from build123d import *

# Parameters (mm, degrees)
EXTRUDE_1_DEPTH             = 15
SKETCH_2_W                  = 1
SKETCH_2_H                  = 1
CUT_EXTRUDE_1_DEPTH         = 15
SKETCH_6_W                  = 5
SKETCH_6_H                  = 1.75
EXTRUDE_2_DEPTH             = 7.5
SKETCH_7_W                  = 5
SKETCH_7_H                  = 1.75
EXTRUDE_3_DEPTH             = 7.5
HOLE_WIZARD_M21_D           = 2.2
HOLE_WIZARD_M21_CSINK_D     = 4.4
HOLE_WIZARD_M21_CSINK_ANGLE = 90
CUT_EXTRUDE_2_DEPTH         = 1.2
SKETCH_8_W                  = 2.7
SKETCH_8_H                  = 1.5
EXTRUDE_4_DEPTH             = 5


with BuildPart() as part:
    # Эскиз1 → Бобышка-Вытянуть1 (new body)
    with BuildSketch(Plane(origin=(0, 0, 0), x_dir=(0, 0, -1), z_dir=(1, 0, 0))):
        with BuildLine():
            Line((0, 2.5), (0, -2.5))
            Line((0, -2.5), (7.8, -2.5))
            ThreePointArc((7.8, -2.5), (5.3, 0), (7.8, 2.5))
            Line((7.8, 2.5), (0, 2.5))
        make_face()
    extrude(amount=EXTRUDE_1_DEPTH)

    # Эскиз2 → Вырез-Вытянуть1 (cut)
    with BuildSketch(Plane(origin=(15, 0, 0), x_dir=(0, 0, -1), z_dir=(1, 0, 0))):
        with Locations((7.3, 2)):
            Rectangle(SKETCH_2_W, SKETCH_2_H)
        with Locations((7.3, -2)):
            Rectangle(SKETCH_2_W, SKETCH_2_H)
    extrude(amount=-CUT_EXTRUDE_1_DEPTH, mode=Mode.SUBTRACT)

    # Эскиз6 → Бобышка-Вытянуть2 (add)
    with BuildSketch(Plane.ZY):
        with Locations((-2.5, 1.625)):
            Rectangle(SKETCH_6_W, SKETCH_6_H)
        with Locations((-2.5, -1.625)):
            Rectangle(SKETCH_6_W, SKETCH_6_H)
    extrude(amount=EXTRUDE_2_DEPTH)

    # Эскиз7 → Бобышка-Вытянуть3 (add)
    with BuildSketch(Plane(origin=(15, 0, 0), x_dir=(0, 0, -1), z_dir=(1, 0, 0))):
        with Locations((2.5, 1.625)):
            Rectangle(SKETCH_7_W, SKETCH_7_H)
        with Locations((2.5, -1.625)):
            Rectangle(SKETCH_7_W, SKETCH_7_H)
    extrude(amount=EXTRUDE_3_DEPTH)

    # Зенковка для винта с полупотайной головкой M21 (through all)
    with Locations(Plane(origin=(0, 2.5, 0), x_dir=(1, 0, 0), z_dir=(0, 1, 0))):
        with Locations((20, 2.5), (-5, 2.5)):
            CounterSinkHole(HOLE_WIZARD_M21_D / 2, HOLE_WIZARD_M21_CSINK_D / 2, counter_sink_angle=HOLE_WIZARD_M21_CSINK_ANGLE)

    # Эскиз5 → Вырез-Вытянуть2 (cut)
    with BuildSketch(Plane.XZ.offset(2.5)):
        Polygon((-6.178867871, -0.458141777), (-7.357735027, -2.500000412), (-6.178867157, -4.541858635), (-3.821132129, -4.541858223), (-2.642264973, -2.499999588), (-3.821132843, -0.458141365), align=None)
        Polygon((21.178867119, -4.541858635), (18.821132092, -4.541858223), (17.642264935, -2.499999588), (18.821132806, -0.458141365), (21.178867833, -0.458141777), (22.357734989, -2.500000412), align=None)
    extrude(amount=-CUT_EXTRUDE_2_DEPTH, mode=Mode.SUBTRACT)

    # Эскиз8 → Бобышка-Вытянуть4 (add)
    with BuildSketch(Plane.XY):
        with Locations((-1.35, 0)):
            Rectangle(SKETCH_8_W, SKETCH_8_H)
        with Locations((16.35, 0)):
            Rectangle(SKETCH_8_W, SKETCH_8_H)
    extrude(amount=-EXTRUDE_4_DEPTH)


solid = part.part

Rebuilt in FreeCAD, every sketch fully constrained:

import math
import FreeCAD as App
import Part
import Sketcher
from FreeCAD import Vector
Q = App.Units.Quantity

doc = App.newDocument("Part")
body = doc.addObject("PartDesign::Body", "Body")

# Sketch on YZ plane
sketch1 = body.newObject("Sketcher::SketchObject", "Sketch")
sketch1.AttachmentSupport = (doc.getObject("YZ_Plane"), [""])
sketch1.MapMode = "FlatFace"
sketch1.addGeometry(Part.LineSegment(Vector(2.5, 0, 0), Vector(-2.5, 0, 0)), False)
sketch1.addGeometry(Part.LineSegment(Vector(-2.5, 0, 0), Vector(-2.5, -7.8, 0)), False)
sketch1.addGeometry(Part.ArcOfCircle(Part.Circle(Vector(0, -7.8, 0), Vector(0, 0, 1), 2.5), math.radians(0), math.radians(180)), False)
sketch1.addGeometry(Part.LineSegment(Vector(2.5, -7.8, 0), Vector(2.5, 0, 0)), False)
sketch1.addConstraint(Sketcher.Constraint("Coincident", 0, 2, 1, 1))
sketch1.addConstraint(Sketcher.Constraint("Tangent", 1, 2, 2, 2))
sketch1.addConstraint(Sketcher.Constraint("Tangent", 2, 1, 3, 1))
sketch1.addConstraint(Sketcher.Constraint("Coincident", 3, 2, 0, 1))
sketch1.addConstraint(Sketcher.Constraint("Horizontal", 0))
sketch1.addConstraint(Sketcher.Constraint("Vertical", 1))
sketch1.addConstraint(Sketcher.Constraint("Vertical", 3))
sketch1.addConstraint(Sketcher.Constraint("Symmetric", 0, 2, 3, 2, -1, 1))
sketch1.addConstraint(Sketcher.Constraint("Radius", 2, Q("2.5 mm")))
sketch1.addConstraint(Sketcher.Constraint("DistanceY", 1, 2, 1, 1, Q("7.8 mm")))
pad1 = body.newObject("PartDesign::Pad", "Pad")
pad1.Profile = sketch1
pad1.Length = 15

# Sketch on YZ plane
sketch2 = body.newObject("Sketcher::SketchObject", "Sketch001")
sketch2.AttachmentSupport = (doc.getObject("YZ_Plane"), [""])
sketch2.MapMode = "FlatFace"
sketch2.AttachmentOffset = App.Placement(Vector(0, 0, 15), App.Rotation())
sketch2.addGeometry(Part.LineSegment(Vector(2.5, -6.8, 0), Vector(1.5, -6.8, 0)), False)
sketch2.addGeometry(Part.LineSegment(Vector(1.5, -6.8, 0), Vector(1.5, -7.8, 0)), False)
sketch2.addGeometry(Part.LineSegment(Vector(1.5, -7.8, 0), Vector(2.5, -7.8, 0)), False)
sketch2.addGeometry(Part.LineSegment(Vector(2.5, -7.8, 0), Vector(2.5, -6.8, 0)), False)
sketch2.addGeometry(Part.LineSegment(Vector(-1.5, -6.8, 0), Vector(-2.5, -6.8, 0)), False)
sketch2.addGeometry(Part.LineSegment(Vector(-2.5, -6.8, 0), Vector(-2.5, -7.8, 0)), False)
sketch2.addGeometry(Part.LineSegment(Vector(-2.5, -7.8, 0), Vector(-1.5, -7.8, 0)), False)
sketch2.addGeometry(Part.LineSegment(Vector(-1.5, -7.8, 0), Vector(-1.5, -6.8, 0)), False)
sketch2.addConstraint(Sketcher.Constraint("Coincident", 0, 2, 1, 1))
sketch2.addConstraint(Sketcher.Constraint("Coincident", 1, 2, 2, 1))
sketch2.addConstraint(Sketcher.Constraint("Coincident", 2, 2, 3, 1))
sketch2.addConstraint(Sketcher.Constraint("Coincident", 3, 2, 0, 1))
sketch2.addConstraint(Sketcher.Constraint("Coincident", 4, 2, 5, 1))
sketch2.addConstraint(Sketcher.Constraint("Coincident", 5, 2, 6, 1))
sketch2.addConstraint(Sketcher.Constraint("Coincident", 6, 2, 7, 1))
sketch2.addConstraint(Sketcher.Constraint("Coincident", 7, 2, 4, 1))
sketch2.addConstraint(Sketcher.Constraint("Horizontal", 0))
sketch2.addConstraint(Sketcher.Constraint("Vertical", 1))
sketch2.addConstraint(Sketcher.Constraint("Horizontal", 2))
sketch2.addConstraint(Sketcher.Constraint("Vertical", 3))
sketch2.addConstraint(Sketcher.Constraint("Horizontal", 4))
sketch2.addConstraint(Sketcher.Constraint("Vertical", 5))
sketch2.addConstraint(Sketcher.Constraint("Horizontal", 6))
sketch2.addConstraint(Sketcher.Constraint("Vertical", 7))
sketch2.addConstraint(Sketcher.Constraint("Symmetric", 3, 2, 4, 2, -2))
sketch2.addConstraint(Sketcher.Constraint("Symmetric", 1, 2, 6, 2, -2))
sketch2.addConstraint(Sketcher.Constraint("Equal", 6, 1))
sketch2.addConstraint(Sketcher.Constraint("DistanceX", 0, 2, 0, 1, Q("1 mm")))
sketch2.addConstraint(Sketcher.Constraint("DistanceX", 4, 2, 0, 2, Q("4 mm")))
sketch2.addConstraint(Sketcher.Constraint("DistanceY", 0, 2, -1, 1, Q("6.8 mm")))
pocket1 = body.newObject("PartDesign::Pocket", "Pocket")
pocket1.Profile = sketch2
pocket1.Length = 15

# Sketch on YZ plane
sketch3 = body.newObject("Sketcher::SketchObject", "Sketch002")
sketch3.AttachmentSupport = (doc.getObject("YZ_Plane"), [""])
sketch3.MapMode = "FlatFace"
sketch3.addGeometry(Part.LineSegment(Vector(2.5, -5, 0), Vector(0.8, -5, 0)), False)
sketch3.addGeometry(Part.LineSegment(Vector(0.8, -5, 0), Vector(0.8, 0, 0)), False)
sketch3.addGeometry(Part.LineSegment(Vector(0.8, 0, 0), Vector(2.5, 0, 0)), False)
sketch3.addGeometry(Part.LineSegment(Vector(2.5, 0, 0), Vector(2.5, -5, 0)), False)
sketch3.addGeometry(Part.LineSegment(Vector(-0.8, -5, 0), Vector(-2.5, -5, 0)), False)
sketch3.addGeometry(Part.LineSegment(Vector(-2.5, -5, 0), Vector(-2.5, 0, 0)), False)
sketch3.addGeometry(Part.LineSegment(Vector(-2.5, 0, 0), Vector(-0.8, 0, 0)), False)
sketch3.addGeometry(Part.LineSegment(Vector(-0.8, 0, 0), Vector(-0.8, -5, 0)), False)
sketch3.addConstraint(Sketcher.Constraint("Coincident", 0, 2, 1, 1))
sketch3.addConstraint(Sketcher.Constraint("Coincident", 1, 2, 2, 1))
sketch3.addConstraint(Sketcher.Constraint("Coincident", 2, 2, 3, 1))
sketch3.addConstraint(Sketcher.Constraint("Coincident", 3, 2, 0, 1))
sketch3.addConstraint(Sketcher.Constraint("Coincident", 4, 2, 5, 1))
sketch3.addConstraint(Sketcher.Constraint("Coincident", 5, 2, 6, 1))
sketch3.addConstraint(Sketcher.Constraint("Coincident", 6, 2, 7, 1))
sketch3.addConstraint(Sketcher.Constraint("Coincident", 7, 2, 4, 1))
sketch3.addConstraint(Sketcher.Constraint("Horizontal", 0))
sketch3.addConstraint(Sketcher.Constraint("Vertical", 1))
sketch3.addConstraint(Sketcher.Constraint("Horizontal", 2))
sketch3.addConstraint(Sketcher.Constraint("Vertical", 3))
sketch3.addConstraint(Sketcher.Constraint("Horizontal", 4))
sketch3.addConstraint(Sketcher.Constraint("Vertical", 5))
sketch3.addConstraint(Sketcher.Constraint("Horizontal", 6))
sketch3.addConstraint(Sketcher.Constraint("Vertical", 7))
sketch3.addConstraint(Sketcher.Constraint("Symmetric", 2, 2, 5, 2, -1, 1))
sketch3.addConstraint(Sketcher.Constraint("Symmetric", 1, 2, 6, 2, -2))
sketch3.addConstraint(Sketcher.Constraint("Horizontal", 3, 2, 4, 2))
sketch3.addConstraint(Sketcher.Constraint("DistanceY", 1, 1, 1, 2, Q("5 mm")))
sketch3.addConstraint(Sketcher.Constraint("DistanceX", 4, 2, 3, 2, Q("5 mm")))
sketch3.addConstraint(Sketcher.Constraint("DistanceX", 0, 2, 0, 1, Q("1.75 mm")))
pad2 = body.newObject("PartDesign::Pad", "Pad001")
pad2.Profile = sketch3
pad2.Length = 7.5
pad2.Reversed = True

# Sketch on YZ plane
sketch4 = body.newObject("Sketcher::SketchObject", "Sketch003")
sketch4.AttachmentSupport = (doc.getObject("YZ_Plane"), [""])
sketch4.MapMode = "FlatFace"
sketch4.AttachmentOffset = App.Placement(Vector(0, 0, 15), App.Rotation())
sketch4.addGeometry(Part.LineSegment(Vector(2.5, 0, 0), Vector(0.8, 0, 0)), False)
sketch4.addGeometry(Part.LineSegment(Vector(0.8, 0, 0), Vector(0.8, -5, 0)), False)
sketch4.addGeometry(Part.LineSegment(Vector(0.8, -5, 0), Vector(2.5, -5, 0)), False)
sketch4.addGeometry(Part.LineSegment(Vector(2.5, -5, 0), Vector(2.5, 0, 0)), False)
sketch4.addGeometry(Part.LineSegment(Vector(-0.8, 0, 0), Vector(-2.5, 0, 0)), False)
sketch4.addGeometry(Part.LineSegment(Vector(-2.5, 0, 0), Vector(-2.5, -5, 0)), False)
sketch4.addGeometry(Part.LineSegment(Vector(-2.5, -5, 0), Vector(-0.8, -5, 0)), False)
sketch4.addGeometry(Part.LineSegment(Vector(-0.8, -5, 0), Vector(-0.8, 0, 0)), False)
sketch4.addConstraint(Sketcher.Constraint("Coincident", 0, 2, 1, 1))
sketch4.addConstraint(Sketcher.Constraint("Coincident", 1, 2, 2, 1))
sketch4.addConstraint(Sketcher.Constraint("Coincident", 2, 2, 3, 1))
sketch4.addConstraint(Sketcher.Constraint("Coincident", 3, 2, 0, 1))
sketch4.addConstraint(Sketcher.Constraint("Coincident", 4, 2, 5, 1))
sketch4.addConstraint(Sketcher.Constraint("Coincident", 5, 2, 6, 1))
sketch4.addConstraint(Sketcher.Constraint("Coincident", 6, 2, 7, 1))
sketch4.addConstraint(Sketcher.Constraint("Coincident", 7, 2, 4, 1))
sketch4.addConstraint(Sketcher.Constraint("Horizontal", 0))
sketch4.addConstraint(Sketcher.Constraint("Vertical", 1))
sketch4.addConstraint(Sketcher.Constraint("Horizontal", 2))
sketch4.addConstraint(Sketcher.Constraint("Vertical", 3))
sketch4.addConstraint(Sketcher.Constraint("Horizontal", 4))
sketch4.addConstraint(Sketcher.Constraint("Vertical", 5))
sketch4.addConstraint(Sketcher.Constraint("Horizontal", 6))
sketch4.addConstraint(Sketcher.Constraint("Vertical", 7))
sketch4.addConstraint(Sketcher.Constraint("Symmetric", 3, 2, 4, 2, -1, 1))
sketch4.addConstraint(Sketcher.Constraint("Symmetric", 1, 2, 6, 2, -2))
sketch4.addConstraint(Sketcher.Constraint("PointOnObject", 0, 2, -1))
sketch4.addConstraint(Sketcher.Constraint("DistanceY", 1, 2, 1, 1, Q("5 mm")))
sketch4.addConstraint(Sketcher.Constraint("DistanceX", 4, 2, 3, 2, Q("5 mm")))
sketch4.addConstraint(Sketcher.Constraint("DistanceX", 0, 2, 0, 1, Q("1.75 mm")))
pad3 = body.newObject("PartDesign::Pad", "Pad002")
pad3.Profile = sketch4
pad3.Length = 7.5

# Sketch on XZ plane
sketch5 = body.newObject("Sketcher::SketchObject", "Sketch004")
sketch5.AttachmentSupport = (doc.getObject("XZ_Plane"), [""])
sketch5.MapMode = "FlatFace"
sketch5.AttachmentOffset = App.Placement(Vector(0, 0, -2.5), App.Rotation())
sketch5.addGeometry(Part.Circle(Vector(20, -2.5, 0), Vector(0, 0, 1), 1.1), False)
sketch5.addGeometry(Part.Circle(Vector(-5, -2.5, 0), Vector(0, 0, 1), 1.1), False)
sketch5.addConstraint(Sketcher.Constraint("Equal", 0, 1))
sketch5.addConstraint(Sketcher.Constraint("Horizontal", 0, 3, 1, 3))
sketch5.addConstraint(Sketcher.Constraint("Diameter", 0, Q("2.2 mm")))
sketch5.addConstraint(Sketcher.Constraint("DistanceX", -1, 1, 0, 3, Q("20 mm")))
sketch5.addConstraint(Sketcher.Constraint("DistanceX", 1, 3, -1, 1, Q("5 mm")))
sketch5.addConstraint(Sketcher.Constraint("DistanceY", 0, 3, -1, 1, Q("2.5 mm")))
doc.recompute()
hole = body.newObject("PartDesign::Hole", "Hole")
hole.Profile = sketch5
hole.ThreadType = "None"
hole.Diameter = 2.2
hole.DepthType = "ThroughAll"
hole.HoleCutType = "Countersink"
hole.HoleCutDiameter = 4.4
hole.HoleCutCountersinkAngle = 90
hole.Reversed = True

# Sketch on XZ plane
sketch6 = body.newObject("Sketcher::SketchObject", "Sketch005")
sketch6.AttachmentSupport = (doc.getObject("XZ_Plane"), [""])
sketch6.MapMode = "FlatFace"
sketch6.AttachmentOffset = App.Placement(Vector(0, 0, 2.5), App.Rotation())
sketch6.addGeometry(Part.LineSegment(Vector(-6.2, -0.5, 0), Vector(-7.4, -2.5, 0)), False)
sketch6.addGeometry(Part.LineSegment(Vector(-7.4, -2.5, 0), Vector(-6.2, -4.5, 0)), False)
sketch6.addGeometry(Part.LineSegment(Vector(-6.2, -4.5, 0), Vector(-3.8, -4.5, 0)), False)
sketch6.addGeometry(Part.LineSegment(Vector(-3.8, -4.5, 0), Vector(-2.6, -2.5, 0)), False)
sketch6.addGeometry(Part.LineSegment(Vector(-2.6, -2.5, 0), Vector(-3.8, -0.5, 0)), False)
sketch6.addGeometry(Part.LineSegment(Vector(-3.8, -0.5, 0), Vector(-6.2, -0.5, 0)), False)
sketch6.addGeometry(Part.LineSegment(Vector(18.8, -4.5, 0), Vector(21.2, -4.5, 0)), False)
sketch6.addGeometry(Part.LineSegment(Vector(21.2, -4.5, 0), Vector(22.4, -2.5, 0)), False)
sketch6.addGeometry(Part.LineSegment(Vector(22.4, -2.5, 0), Vector(21.2, -0.5, 0)), False)
sketch6.addGeometry(Part.LineSegment(Vector(21.2, -0.5, 0), Vector(18.8, -0.5, 0)), False)
sketch6.addGeometry(Part.LineSegment(Vector(18.8, -0.5, 0), Vector(17.6, -2.5, 0)), False)
sketch6.addGeometry(Part.LineSegment(Vector(17.6, -2.5, 0), Vector(18.8, -4.5, 0)), False)
sketch6.addConstraint(Sketcher.Constraint("Coincident", 0, 2, 1, 1))
sketch6.addConstraint(Sketcher.Constraint("Coincident", 1, 2, 2, 1))
sketch6.addConstraint(Sketcher.Constraint("Coincident", 2, 2, 3, 1))
sketch6.addConstraint(Sketcher.Constraint("Coincident", 3, 2, 4, 1))
sketch6.addConstraint(Sketcher.Constraint("Coincident", 4, 2, 5, 1))
sketch6.addConstraint(Sketcher.Constraint("Coincident", 5, 2, 0, 1))
sketch6.addConstraint(Sketcher.Constraint("Coincident", 6, 2, 7, 1))
sketch6.addConstraint(Sketcher.Constraint("Coincident", 7, 2, 8, 1))
sketch6.addConstraint(Sketcher.Constraint("Coincident", 8, 2, 9, 1))
sketch6.addConstraint(Sketcher.Constraint("Coincident", 9, 2, 10, 1))
sketch6.addConstraint(Sketcher.Constraint("Coincident", 10, 2, 11, 1))
sketch6.addConstraint(Sketcher.Constraint("Coincident", 11, 2, 6, 1))
sketch6.addConstraint(Sketcher.Constraint("Horizontal", 2))
sketch6.addConstraint(Sketcher.Constraint("Horizontal", 5))
sketch6.addConstraint(Sketcher.Constraint("Horizontal", 6))
sketch6.addConstraint(Sketcher.Constraint("Horizontal", 9))
sketch6.addConstraint(Sketcher.Constraint("Parallel", 0, 3))
sketch6.addConstraint(Sketcher.Constraint("Parallel", 1, 4))
sketch6.addConstraint(Sketcher.Constraint("Parallel", 3, 7))
sketch6.addConstraint(Sketcher.Constraint("Parallel", 4, 8))
sketch6.addConstraint(Sketcher.Constraint("Parallel", 7, 10))
sketch6.addConstraint(Sketcher.Constraint("Parallel", 8, 11))
sketch6.addConstraint(Sketcher.Constraint("Horizontal", 0, 2, 3, 2))
sketch6.addConstraint(Sketcher.Constraint("Horizontal", 2, 2, 6, 2))
sketch6.addConstraint(Sketcher.Constraint("Horizontal", 3, 2, 7, 2))
sketch6.addConstraint(Sketcher.Constraint("Horizontal", 5, 2, 8, 2))
sketch6.addConstraint(Sketcher.Constraint("Horizontal", 7, 2, 10, 2))
sketch6.addConstraint(Sketcher.Constraint("Vertical", 2, 2, 4, 2))
sketch6.addConstraint(Sketcher.Constraint("Vertical", 1, 2, 5, 2))
sketch6.addConstraint(Sketcher.Constraint("Equal", 5, 6))
sketch6.addConstraint(Sketcher.Constraint("Angle", 0, Q("-119.99999 deg")))
sketch6.addConstraint(Sketcher.Constraint("DistanceX", 2, 2, 6, 2, Q("24.999999 mm")))
sketch6.addConstraint(Sketcher.Constraint("DistanceY", 0, 2, -1, 1, Q("2.5 mm")))
sketch6.addConstraint(Sketcher.Constraint("DistanceX", 2, 1, 2, 2, Q("2.357735 mm")))
sketch6.addConstraint(Sketcher.Constraint("DistanceY", 1, 2, -1, 1, Q("4.541859 mm")))
sketch6.addConstraint(Sketcher.Constraint("DistanceX", 0, 2, -1, 1, Q("7.357735 mm")))
pocket2 = body.newObject("PartDesign::Pocket", "Pocket001")
pocket2.Profile = sketch6
pocket2.Length = 1.2

# Sketch on XY plane
sketch7 = body.newObject("Sketcher::SketchObject", "Sketch006")
sketch7.AttachmentSupport = (doc.getObject("XY_Plane"), [""])
sketch7.MapMode = "FlatFace"
sketch7.addGeometry(Part.LineSegment(Vector(-2.7, 0.8, 0), Vector(-2.7, -0.8, 0)), False)
sketch7.addGeometry(Part.LineSegment(Vector(-2.7, -0.8, 0), Vector(0, -0.8, 0)), False)
sketch7.addGeometry(Part.LineSegment(Vector(0, -0.8, 0), Vector(0, 0.8, 0)), False)
sketch7.addGeometry(Part.LineSegment(Vector(0, 0.8, 0), Vector(-2.7, 0.8, 0)), False)
sketch7.addGeometry(Part.LineSegment(Vector(15, 0.8, 0), Vector(15, -0.8, 0)), False)
sketch7.addGeometry(Part.LineSegment(Vector(15, -0.8, 0), Vector(17.7, -0.8, 0)), False)
sketch7.addGeometry(Part.LineSegment(Vector(17.7, -0.8, 0), Vector(17.7, 0.8, 0)), False)
sketch7.addGeometry(Part.LineSegment(Vector(17.7, 0.8, 0), Vector(15, 0.8, 0)), False)
sketch7.addConstraint(Sketcher.Constraint("Coincident", 0, 2, 1, 1))
sketch7.addConstraint(Sketcher.Constraint("Coincident", 1, 2, 2, 1))
sketch7.addConstraint(Sketcher.Constraint("Coincident", 2, 2, 3, 1))
sketch7.addConstraint(Sketcher.Constraint("Coincident", 3, 2, 0, 1))
sketch7.addConstraint(Sketcher.Constraint("Coincident", 4, 2, 5, 1))
sketch7.addConstraint(Sketcher.Constraint("Coincident", 5, 2, 6, 1))
sketch7.addConstraint(Sketcher.Constraint("Coincident", 6, 2, 7, 1))
sketch7.addConstraint(Sketcher.Constraint("Coincident", 7, 2, 4, 1))
sketch7.addConstraint(Sketcher.Constraint("Vertical", 0))
sketch7.addConstraint(Sketcher.Constraint("Horizontal", 1))
sketch7.addConstraint(Sketcher.Constraint("Vertical", 2))
sketch7.addConstraint(Sketcher.Constraint("Horizontal", 3))
sketch7.addConstraint(Sketcher.Constraint("Vertical", 4))
sketch7.addConstraint(Sketcher.Constraint("Horizontal", 5))
sketch7.addConstraint(Sketcher.Constraint("Vertical", 6))
sketch7.addConstraint(Sketcher.Constraint("Horizontal", 7))
sketch7.addConstraint(Sketcher.Constraint("Symmetric", 1, 2, 2, 2, -1, 1))
sketch7.addConstraint(Sketcher.Constraint("Horizontal", 1, 2, 4, 2))
sketch7.addConstraint(Sketcher.Constraint("Horizontal", 3, 2, 6, 2))
sketch7.addConstraint(Sketcher.Constraint("Equal", 3, 5))
sketch7.addConstraint(Sketcher.Constraint("DistanceX", 1, 1, 1, 2, Q("2.7 mm")))
sketch7.addConstraint(Sketcher.Constraint("DistanceY", 0, 2, 0, 1, Q("1.5 mm")))
sketch7.addConstraint(Sketcher.Constraint("DistanceX", -1, 1, 4, 2, Q("15 mm")))
pad4 = body.newObject("PartDesign::Pad", "Pad003")
pad4.Profile = sketch7
pad4.Length = 5
pad4.Reversed = True

doc.recompute()
